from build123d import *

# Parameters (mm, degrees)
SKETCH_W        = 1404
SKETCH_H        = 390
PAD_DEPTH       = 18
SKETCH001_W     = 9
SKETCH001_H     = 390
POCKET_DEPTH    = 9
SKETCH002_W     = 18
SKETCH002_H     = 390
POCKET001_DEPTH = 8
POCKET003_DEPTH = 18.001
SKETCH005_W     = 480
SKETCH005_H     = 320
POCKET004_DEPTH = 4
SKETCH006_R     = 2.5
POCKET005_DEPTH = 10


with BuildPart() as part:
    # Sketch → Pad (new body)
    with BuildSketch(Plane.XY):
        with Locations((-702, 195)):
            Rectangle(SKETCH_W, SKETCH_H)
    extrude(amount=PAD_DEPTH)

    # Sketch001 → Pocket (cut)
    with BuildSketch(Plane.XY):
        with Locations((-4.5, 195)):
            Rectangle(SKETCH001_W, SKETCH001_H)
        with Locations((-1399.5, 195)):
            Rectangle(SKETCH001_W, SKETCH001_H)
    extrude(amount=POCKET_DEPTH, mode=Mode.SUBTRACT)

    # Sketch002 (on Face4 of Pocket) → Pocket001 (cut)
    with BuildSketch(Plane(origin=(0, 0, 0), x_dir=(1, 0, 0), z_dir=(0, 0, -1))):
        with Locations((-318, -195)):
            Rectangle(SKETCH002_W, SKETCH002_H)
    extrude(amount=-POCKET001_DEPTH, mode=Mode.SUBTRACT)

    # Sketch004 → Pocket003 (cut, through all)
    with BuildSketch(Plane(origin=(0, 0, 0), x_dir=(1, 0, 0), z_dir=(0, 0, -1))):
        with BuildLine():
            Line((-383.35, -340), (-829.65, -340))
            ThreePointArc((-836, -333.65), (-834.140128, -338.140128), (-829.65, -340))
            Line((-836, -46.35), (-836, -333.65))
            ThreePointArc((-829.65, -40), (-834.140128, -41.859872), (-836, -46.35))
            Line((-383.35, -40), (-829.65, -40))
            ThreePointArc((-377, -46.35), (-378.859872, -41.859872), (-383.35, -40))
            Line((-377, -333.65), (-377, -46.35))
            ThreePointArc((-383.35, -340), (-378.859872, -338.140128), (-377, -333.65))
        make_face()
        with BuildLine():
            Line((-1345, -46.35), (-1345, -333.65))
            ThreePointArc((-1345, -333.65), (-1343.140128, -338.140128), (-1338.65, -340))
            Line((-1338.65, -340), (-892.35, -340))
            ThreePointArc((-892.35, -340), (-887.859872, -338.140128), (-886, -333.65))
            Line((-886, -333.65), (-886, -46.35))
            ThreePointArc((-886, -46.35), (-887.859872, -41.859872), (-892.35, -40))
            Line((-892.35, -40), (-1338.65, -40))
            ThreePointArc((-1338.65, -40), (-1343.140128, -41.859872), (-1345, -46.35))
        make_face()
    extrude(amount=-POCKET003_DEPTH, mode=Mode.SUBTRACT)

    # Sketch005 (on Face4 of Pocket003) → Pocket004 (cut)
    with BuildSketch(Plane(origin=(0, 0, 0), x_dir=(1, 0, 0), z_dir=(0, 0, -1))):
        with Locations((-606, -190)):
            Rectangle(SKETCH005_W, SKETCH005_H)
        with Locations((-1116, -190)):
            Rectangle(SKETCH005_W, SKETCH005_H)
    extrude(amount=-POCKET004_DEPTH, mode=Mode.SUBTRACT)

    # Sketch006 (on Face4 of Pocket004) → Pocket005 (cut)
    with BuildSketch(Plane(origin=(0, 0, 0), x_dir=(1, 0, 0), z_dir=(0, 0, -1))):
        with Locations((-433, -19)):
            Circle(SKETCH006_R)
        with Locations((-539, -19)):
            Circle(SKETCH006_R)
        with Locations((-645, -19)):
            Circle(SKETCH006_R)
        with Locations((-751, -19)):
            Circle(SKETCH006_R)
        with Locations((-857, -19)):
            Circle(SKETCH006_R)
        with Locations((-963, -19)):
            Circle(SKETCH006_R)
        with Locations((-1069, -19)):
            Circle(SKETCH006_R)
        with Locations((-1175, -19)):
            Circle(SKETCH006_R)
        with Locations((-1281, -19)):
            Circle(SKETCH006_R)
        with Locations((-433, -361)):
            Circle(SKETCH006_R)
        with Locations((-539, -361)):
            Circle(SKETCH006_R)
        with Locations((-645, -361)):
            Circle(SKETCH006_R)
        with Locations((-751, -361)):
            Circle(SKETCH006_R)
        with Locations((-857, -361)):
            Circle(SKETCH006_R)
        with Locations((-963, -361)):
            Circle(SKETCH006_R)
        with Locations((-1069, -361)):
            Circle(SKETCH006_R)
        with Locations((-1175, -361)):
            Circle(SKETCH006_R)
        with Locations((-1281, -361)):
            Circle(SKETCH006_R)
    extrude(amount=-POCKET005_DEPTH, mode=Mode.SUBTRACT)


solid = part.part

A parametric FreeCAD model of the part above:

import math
import FreeCAD as App
import Part
import Sketcher
from FreeCAD import Vector
Q = App.Units.Quantity

doc = App.newDocument("Part")
body = doc.addObject("PartDesign::Body", "Body")

# Sketch on XY plane
sketch1 = body.newObject("Sketcher::SketchObject", "Sketch")
sketch1.AttachmentSupport = (doc.getObject("XY_Plane"), [""])
sketch1.MapMode = "FlatFace"
sketch1.addGeometry(Part.LineSegment(Vector(-1404, 390, 0), Vector(-1404, 0, 0)), False)
sketch1.addGeometry(Part.LineSegment(Vector(-1404, 0, 0), Vector(0, 0, 0)), False)
sketch1.addGeometry(Part.LineSegment(Vector(0, 0, 0), Vector(0, 390, 0)), False)
sketch1.addGeometry(Part.LineSegment(Vector(0, 390, 0), Vector(-1404, 390, 0)), False)
sketch1.addConstraint(Sketcher.Constraint("Coincident", 0, 2, 1, 1))
sketch1.addConstraint(Sketcher.Constraint("Coincident", 1, 2, 2, 1))
sketch1.addConstraint(Sketcher.Constraint("Coincident", 2, 2, 3, 1))
sketch1.addConstraint(Sketcher.Constraint("Coincident", 3, 2, 0, 1))
sketch1.addConstraint(Sketcher.Constraint("Vertical", 0))
sketch1.addConstraint(Sketcher.Constraint("Horizontal", 1))
sketch1.addConstraint(Sketcher.Constraint("Vertical", 2))
sketch1.addConstraint(Sketcher.Constraint("Horizontal", 3))
sketch1.addConstraint(Sketcher.Constraint("Coincident", 1, 2, -1, 1))
sketch1.addConstraint(Sketcher.Constraint("DistanceX", 1, 1, 1, 2, Q("1404 mm")))
sketch1.addConstraint(Sketcher.Constraint("DistanceY", 0, 2, 0, 1, Q("390 mm")))
pad1 = body.newObject("PartDesign::Pad", "Pad")
pad1.Profile = sketch1
pad1.Length = 18

# Sketch on XY plane
sketch2 = body.newObject("Sketcher::SketchObject", "Sketch001")
sketch2.AttachmentSupport = (doc.getObject("XY_Plane"), [""])
sketch2.MapMode = "FlatFace"
sketch2.addGeometry(Part.LineSegment(Vector(-9, 390, 0), Vector(-9, 0, 0)), False)
sketch2.addGeometry(Part.LineSegment(Vector(-9, 0, 0), Vector(0, 0, 0)), False)
sketch2.addGeometry(Part.LineSegment(Vector(0, 0, 0), Vector(0, 390, 0)), False)
sketch2.addGeometry(Part.LineSegment(Vector(0, 390, 0), Vector(-9, 390, 0)), False)
sketch2.addGeometry(Part.LineSegment(Vector(-1404, 390, 0), Vector(-1404, 0, 0)), False)
sketch2.addGeometry(Part.LineSegment(Vector(-1404, 0, 0), Vector(-1395, 0, 0)), False)
sketch2.addGeometry(Part.LineSegment(Vector(-1395, 0, 0), Vector(-1395, 390, 0)), False)
sketch2.addGeometry(Part.LineSegment(Vector(-1395, 390, 0), Vector(-1404, 390, 0)), False)
sketch2.addConstraint(Sketcher.Constraint("Coincident", 0, 2, 1, 1))
sketch2.addConstraint(Sketcher.Constraint("Coincident", 1, 2, 2, 1))
sketch2.addConstraint(Sketcher.Constraint("Coincident", 2, 2, 3, 1))
sketch2.addConstraint(Sketcher.Constraint("Coincident", 3, 2, 0, 1))
sketch2.addConstraint(Sketcher.Constraint("Coincident", 4, 2, 5, 1))
sketch2.addConstraint(Sketcher.Constraint("Coincident", 5, 2, 6, 1))
sketch2.addConstraint(Sketcher.Constraint("Coincident", 6, 2, 7, 1))
sketch2.addConstraint(Sketcher.Constraint("Coincident", 7, 2, 4, 1))
sketch2.addConstraint(Sketcher.Constraint("Vertical", 0))
sketch2.addConstraint(Sketcher.Constraint("Horizontal", 1))
sketch2.addConstraint(Sketcher.Constraint("Vertical", 2))
sketch2.addConstraint(Sketcher.Constraint("Horizontal", 3))
sketch2.addConstraint(Sketcher.Constraint("Vertical", 4))
sketch2.addConstraint(Sketcher.Constraint("Horizontal", 5))
sketch2.addConstraint(Sketcher.Constraint("Vertical", 6))
sketch2.addConstraint(Sketcher.Constraint("Horizontal", 7))
sketch2.addConstraint(Sketcher.Constraint("Coincident", 1, 2, -1, 1))
sketch2.addConstraint(Sketcher.Constraint("PointOnObject", 4, 2, -1))
sketch2.addConstraint(Sketcher.Constraint("Horizontal", 3, 2, 6, 2))
sketch2.addConstraint(Sketcher.Constraint("Equal", 3, 5))
sketch2.addConstraint(Sketcher.Constraint("DistanceX", 1, 1, 1, 2, Q("9 mm")))
sketch2.addConstraint(Sketcher.Constraint("DistanceY", 0, 2, 0, 1, Q("390 mm")))
sketch2.addConstraint(Sketcher.Constraint("DistanceX", 4, 2, -1, 1, Q("1404 mm")))
pocket1 = body.newObject("PartDesign::Pocket", "Pocket")
pocket1.Profile = sketch2
pocket1.Length = 9
pocket1.Reversed = True

# Sketch on XY plane
sketch3 = body.newObject("Sketcher::SketchObject", "Sketch002")
sketch3.AttachmentSupport = (doc.getObject("XY_Plane"), [""])
sketch3.MapMode = "FlatFace"
sketch3.addGeometry(Part.LineSegment(Vector(-327, 0, 0), Vector(-327, 390, 0)), False)
sketch3.addGeometry(Part.LineSegment(Vector(-327, 390, 0), Vector(-309, 390, 0)), False)
sketch3.addGeometry(Part.LineSegment(Vector(-309, 390, 0), Vector(-309, 0, 0)), False)
sketch3.addGeometry(Part.LineSegment(Vector(-309, 0, 0), Vector(-327, 0, 0)), False)
sketch3.addConstraint(Sketcher.Constraint("Coincident", 0, 2, 1, 1))
sketch3.addConstraint(Sketcher.Constraint("Coincident", 1, 2, 2, 1))
sketch3.addConstraint(Sketcher.Constraint("Coincident", 2, 2, 3, 1))
sketch3.addConstraint(Sketcher.Constraint("Coincident", 3, 2, 0, 1))
sketch3.addConstraint(Sketcher.Constraint("Vertical", 0))
sketch3.addConstraint(Sketcher.Constraint("Horizontal", 1))
sketch3.addConstraint(Sketcher.Constraint("Vertical", 2))
sketch3.addConstraint(Sketcher.Constraint("Horizontal", 3))
sketch3.addConstraint(Sketcher.Constraint("PointOnObject", 2, 2, -1))
sketch3.addConstraint(Sketcher.Constraint("DistanceX", 1, 1, 1, 2, Q("18 mm")))
sketch3.addConstraint(Sketcher.Constraint("DistanceY", 0, 1, 0, 2, Q("390 mm")))
sketch3.addConstraint(Sketcher.Constraint("DistanceX", 0, 2, -1, 1, Q("327 mm")))
pocket2 = body.newObject("PartDesign::Pocket", "Pocket001")
pocket2.Profile = sketch3
pocket2.Length = 8
pocket2.Reversed = True

# Sketch on XY plane
sketch4 = body.newObject("Sketcher::SketchObject", "Sketch003")
sketch4.AttachmentSupport = (doc.getObject("XY_Plane"), [""])
sketch4.MapMode = "FlatFace"
sketch4.addGeometry(Part.LineSegment(Vector(-830, 340, 0), Vector(-383, 340, 0)), False)
sketch4.addGeometry(Part.ArcOfCircle(Part.Circle(Vector(-383, 334, 0), Vector(0, 0, 1), 6), math.radians(0), math.radians(90)), False)
sketch4.addGeometry(Part.LineSegment(Vector(-377, 334, 0), Vector(-377, 46, 0)), False)
sketch4.addGeometry(Part.ArcOfCircle(Part.Circle(Vector(-383, 46, 0), Vector(0, 0, 1), 6), math.radians(-90), math.radians(0)), False)
sketch4.addGeometry(Part.LineSegment(Vector(-383, 40, 0), Vector(-830, 40, 0)), False)
sketch4.addGeometry(Part.ArcOfCircle(Part.Circle(Vector(-830, 46, 0), Vector(0, 0, 1), 6), math.radians(-180), math.radians(-90)), False)
sketch4.addGeometry(Part.LineSegment(Vector(-836, 46, 0), Vector(-836, 334, 0)), False)
sketch4.addGeometry(Part.ArcOfCircle(Part.Circle(Vector(-830, 334, 0), Vector(0, 0, 1), 6), math.radians(90), math.radians(180)), False)
sketch4.addGeometry(Part.LineSegment(Vector(-1345, 46, 0), Vector(-1345, 334, 0)), False)
sketch4.addGeometry(Part.ArcOfCircle(Part.Circle(Vector(-1339, 334, 0), Vector(0, 0, 1), 6), math.radians(90), math.radians(180)), False)
sketch4.addGeometry(Part.LineSegment(Vector(-1339, 340, 0), Vector(-892, 340, 0)), False)
sketch4.addGeometry(Part.ArcOfCircle(Part.Circle(Vector(-892, 334, 0), Vector(0, 0, 1), 6), math.radians(0), math.radians(90)), False)
sketch4.addGeometry(Part.LineSegment(Vector(-886, 334, 0), Vector(-886, 46, 0)), False)
sketch4.addGeometry(Part.ArcOfCircle(Part.Circle(Vector(-892, 46, 0), Vector(0, 0, 1), 6), math.radians(-90), math.radians(0)), False)
sketch4.addGeometry(Part.LineSegment(Vector(-892, 40, 0), Vector(-1339, 40, 0)), False)
sketch4.addGeometry(Part.ArcOfCircle(Part.Circle(Vector(-1339, 46, 0), Vector(0, 0, 1), 6), math.radians(-180), math.radians(-90)), False)
sketch4.addConstraint(Sketcher.Constraint("Tangent", 0, 2, 1, 2))
sketch4.addConstraint(Sketcher.Constraint("Tangent", 1, 1, 2, 1))
sketch4.addConstraint(Sketcher.Constraint("Tangent", 2, 2, 3, 2))
sketch4.addConstraint(Sketcher.Constraint("Tangent", 3, 1, 4, 1))
sketch4.addConstraint(Sketcher.Constraint("Tangent", 4, 2, 5, 2))
sketch4.addConstraint(Sketcher.Constraint("Tangent", 5, 1, 6, 1))
sketch4.addConstraint(Sketcher.Constraint("Tangent", 6, 2, 7, 2))
sketch4.addConstraint(Sketcher.Constraint("Tangent", 7, 1, 0, 1))
sketch4.addConstraint(Sketcher.Constraint("Tangent", 8, 2, 9, 2))
sketch4.addConstraint(Sketcher.Constraint("Tangent", 9, 1, 10, 1))
sketch4.addConstraint(Sketcher.Constraint("Tangent", 10, 2, 11, 2))
sketch4.addConstraint(Sketcher.Constraint("Tangent", 11, 1, 12, 1))
sketch4.addConstraint(Sketcher.Constraint("Tangent", 12, 2, 13, 2))
sketch4.addConstraint(Sketcher.Constraint("Tangent", 13, 1, 14, 1))
sketch4.addConstraint(Sketcher.Constraint("Tangent", 14, 2, 15, 2))
sketch4.addConstraint(Sketcher.Constraint("Tangent", 15, 1, 8, 1))
sketch4.addConstraint(Sketcher.Constraint("Horizontal", 0))
sketch4.addConstraint(Sketcher.Constraint("Vertical", 2))
sketch4.addConstraint(Sketcher.Constraint("Horizontal", 4))
sketch4.addConstraint(Sketcher.Constraint("Vertical", 6))
sketch4.addConstraint(Sketcher.Constraint("Vertical", 8))
sketch4.addConstraint(Sketcher.Constraint("Horizontal", 10))
sketch4.addConstraint(Sketcher.Constraint("Vertical", 12))
sketch4.addConstraint(Sketcher.Constraint("Horizontal", 14))
sketch4.addConstraint(Sketcher.Constraint("Equal", 1, 3))
sketch4.addConstraint(Sketcher.Constraint("Equal", 3, 5))
sketch4.addConstraint(Sketcher.Constraint("Equal", 5, 7))
sketch4.addConstraint(Sketcher.Constraint("Equal", 7, 9))
sketch4.addConstraint(Sketcher.Constraint("Equal", 9, 11))
sketch4.addConstraint(Sketcher.Constraint("Equal", 11, 13))
sketch4.addConstraint(Sketcher.Constraint("Equal", 13, 15))
sketch4.addConstraint(Sketcher.Constraint("Horizontal", 7, 3, 9, 3))
sketch4.addConstraint(Sketcher.Constraint("Horizontal", 5, 3, 13, 3))
sketch4.addConstraint(Sketcher.Constraint("Equal", 4, 10))
sketch4.addConstraint(Sketcher.Constraint("Radius", 1, Q("6.35 mm")))
sketch4.addConstraint(Sketcher.Constraint("DistanceX", 0, 1, 0, 2, Q("446.3 mm")))
sketch4.addConstraint(Sketcher.Constraint("DistanceY", 2, 2, 2, 1, Q("287.3 mm")))
sketch4.addConstraint(Sketcher.Constraint("DistanceY", -1, 1, 0, 2, Q("340 mm")))
sketch4.addConstraint(Sketcher.Constraint("DistanceX", 1, 1, -1, 1, Q("377 mm")))
sketch4.addConstraint(Sketcher.Constraint("DistanceX", 8, 2, -1, 1, Q("1345 mm")))
pocket3 = body.newObject("PartDesign::Pocket", "Pocket002")
pocket3.Profile = sketch4
pocket3.Type = "ThroughAll"
pocket3.Reversed = True

# Sketch on XY plane
sketch5 = body.newObject("Sketcher::SketchObject", "Sketch004")
sketch5.AttachmentSupport = (doc.getObject("XY_Plane"), [""])
sketch5.MapMode = "FlatFace"
sketch5.addGeometry(Part.LineSegment(Vector(-846, 30, 0), Vector(-846, 350, 0)), False)
sketch5.addGeometry(Part.LineSegment(Vector(-846, 350, 0), Vector(-366, 350, 0)), False)
sketch5.addGeometry(Part.LineSegment(Vector(-366, 350, 0), Vector(-366, 30, 0)), False)
sketch5.addGeometry(Part.LineSegment(Vector(-366, 30, 0), Vector(-846, 30, 0)), False)
sketch5.addGeometry(Part.LineSegment(Vector(-1356, 30, 0), Vector(-1356, 350, 0)), False)
sketch5.addGeometry(Part.LineSegment(Vector(-1356, 350, 0), Vector(-876, 350, 0)), False)
sketch5.addGeometry(Part.LineSegment(Vector(-876, 350, 0), Vector(-876, 30, 0)), False)
sketch5.addGeometry(Part.LineSegment(Vector(-876, 30, 0), Vector(-1356, 30, 0)), False)
sketch5.addConstraint(Sketcher.Constraint("Coincident", 0, 2, 1, 1))
sketch5.addConstraint(Sketcher.Constraint("Coincident", 1, 2, 2, 1))
sketch5.addConstraint(Sketcher.Constraint("Coincident", 2, 2, 3, 1))
sketch5.addConstraint(Sketcher.Constraint("Coincident", 3, 2, 0, 1))
sketch5.addConstraint(Sketcher.Constraint("Coincident", 4, 2, 5, 1))
sketch5.addConstraint(Sketcher.Constraint("Coincident", 5, 2, 6, 1))
sketch5.addConstraint(Sketcher.Constraint("Coincident", 6, 2, 7, 1))
sketch5.addConstraint(Sketcher.Constraint("Coincident", 7, 2, 4, 1))
sketch5.addConstraint(Sketcher.Constraint("Vertical", 0))
sketch5.addConstraint(Sketcher.Constraint("Horizontal", 1))
sketch5.addConstraint(Sketcher.Constraint("Vertical", 2))
sketch5.addConstraint(Sketcher.Constraint("Horizontal", 3))
sketch5.addConstraint(Sketcher.Constraint("Vertical", 4))
sketch5.addConstraint(Sketcher.Constraint("Horizontal", 5))
sketch5.addConstraint(Sketcher.Constraint("Vertical", 6))
sketch5.addConstraint(Sketcher.Constraint("Horizontal", 7))
sketch5.addConstraint(Sketcher.Constraint("Horizontal", 1, 2, 4, 2))
sketch5.addConstraint(Sketcher.Constraint("Horizontal", 3, 2, 6, 2))
sketch5.addConstraint(Sketcher.Constraint("Equal", 3, 5))
sketch5.addConstraint(Sketcher.Constraint("DistanceX", 1, 1, 1, 2, Q("480 mm")))
sketch5.addConstraint(Sketcher.Constraint("DistanceY", 0, 1, 0, 2, Q("320 mm")))
sketch5.addConstraint(Sketcher.Constraint("DistanceX", 0, 2, -1, 1, Q("846 mm")))
sketch5.addConstraint(Sketcher.Constraint("DistanceY", -1, 1, 0, 2, Q("350 mm")))
sketch5.addConstraint(Sketcher.Constraint("DistanceX", 4, 2, -1, 1, Q("1356 mm")))
pocket4 = body.newObject("PartDesign::Pocket", "Pocket003")
pocket4.Profile = sketch5
pocket4.Length = 4
pocket4.Reversed = True

# Sketch on XY plane
sketch6 = body.newObject("Sketcher::SketchObject", "Sketch005")
sketch6.AttachmentSupport = (doc.getObject("XY_Plane"), [""])
sketch6.MapMode = "FlatFace"
sketch6.addGeometry(Part.Circle(Vector(-433, 19, 0), Vector(0, 0, 1), 2.5), False)
sketch6.addGeometry(Part.Circle(Vector(-539, 19, 0), Vector(0, 0, 1), 2.5), False)
sketch6.addGeometry(Part.Circle(Vector(-645, 19, 0), Vector(0, 0, 1), 2.5), False)
sketch6.addGeometry(Part.Circle(Vector(-751, 19, 0), Vector(0, 0, 1), 2.5), False)
sketch6.addGeometry(Part.Circle(Vector(-857, 19, 0), Vector(0, 0, 1), 2.5), False)
sketch6.addGeometry(Part.Circle(Vector(-963, 19, 0), Vector(0, 0, 1), 2.5), False)
sketch6.addGeometry(Part.Circle(Vector(-1069, 19, 0), Vector(0, 0, 1), 2.5), False)
sketch6.addGeometry(Part.Circle(Vector(-1175, 19, 0), Vector(0, 0, 1), 2.5), False)
sketch6.addGeometry(Part.Circle(Vector(-1281, 19, 0), Vector(0, 0, 1), 2.5), False)
sketch6.addGeometry(Part.Circle(Vector(-433, 361, 0), Vector(0, 0, 1), 2.5), False)
sketch6.addGeometry(Part.Circle(Vector(-539, 361, 0), Vector(0, 0, 1), 2.5), False)
sketch6.addGeometry(Part.Circle(Vector(-645, 361, 0), Vector(0, 0, 1), 2.5), False)
sketch6.addGeometry(Part.Circle(Vector(-751, 361, 0), Vector(0, 0, 1), 2.5), False)
sketch6.addGeometry(Part.Circle(Vector(-857, 361, 0), Vector(0, 0, 1), 2.5), False)
sketch6.addGeometry(Part.Circle(Vector(-963, 361, 0), Vector(0, 0, 1), 2.5), False)
sketch6.addGeometry(Part.Circle(Vector(-1069, 361, 0), Vector(0, 0, 1), 2.5), False)
sketch6.addGeometry(Part.Circle(Vector(-1175, 361, 0), Vector(0, 0, 1), 2.5), False)
sketch6.addGeometry(Part.Circle(Vector(-1281, 361, 0), Vector(0, 0, 1), 2.5), False)
sketch6.addConstraint(Sketcher.Constraint("Equal", 0, 1))
sketch6.addConstraint(Sketcher.Constraint("Equal", 1, 2))
sketch6.addConstraint(Sketcher.Constraint("Equal", 2, 3))
sketch6.addConstraint(Sketcher.Constraint("Equal", 3, 4))
sketch6.addConstraint(Sketcher.Constraint("Equal", 4, 5))
sketch6.addConstraint(Sketcher.Constraint("Equal", 5, 6))
sketch6.addConstraint(Sketcher.Constraint("Equal", 6, 7))
sketch6.addConstraint(Sketcher.Constraint("Equal", 7, 8))
sketch6.addConstraint(Sketcher.Constraint("Equal", 8, 9))
sketch6.addConstraint(Sketcher.Constraint("Equal", 9, 10))
sketch6.addConstraint(Sketcher.Constraint("Equal", 10, 11))
sketch6.addConstraint(Sketcher.Constraint("Equal", 11, 12))
sketch6.addConstraint(Sketcher.Constraint("Equal", 12, 13))
sketch6.addConstraint(Sketcher.Constraint("Equal", 13, 14))
sketch6.addConstraint(Sketcher.Constraint("Equal", 14, 15))
sketch6.addConstraint(Sketcher.Constraint("Equal", 15, 16))
sketch6.addConstraint(Sketcher.Constraint("Equal", 16, 17))
sketch6.addConstraint(Sketcher.Constraint("Horizontal", 0, 3, 1, 3))
sketch6.addConstraint(Sketcher.Constraint("Horizontal", 1, 3, 2, 3))
sketch6.addConstraint(Sketcher.Constraint("Horizontal", 2, 3, 3, 3))
sketch6.addConstraint(Sketcher.Constraint("Horizontal", 3, 3, 4, 3))
sketch6.addConstraint(Sketcher.Constraint("Horizontal", 4, 3, 5, 3))
sketch6.addConstraint(Sketcher.Constraint("Horizontal", 5, 3, 6, 3))
sketch6.addConstraint(Sketcher.Constraint("Horizontal", 6, 3, 7, 3))
sketch6.addConstraint(Sketcher.Constraint("Horizontal", 7, 3, 8, 3))
sketch6.addConstraint(Sketcher.Constraint("Horizontal", 9, 3, 10, 3))
sketch6.addConstraint(Sketcher.Constraint("Horizontal", 10, 3, 11, 3))
sketch6.addConstraint(Sketcher.Constraint("Horizontal", 11, 3, 12, 3))
sketch6.addConstraint(Sketcher.Constraint("Horizontal", 12, 3, 13, 3))
sketch6.addConstraint(Sketcher.Constraint("Horizontal", 13, 3, 14, 3))
sketch6.addConstraint(Sketcher.Constraint("Horizontal", 14, 3, 15, 3))
sketch6.addConstraint(Sketcher.Constraint("Horizontal", 15, 3, 16, 3))
sketch6.addConstraint(Sketcher.Constraint("Horizontal", 16, 3, 17, 3))
sketch6.addConstraint(Sketcher.Constraint("Vertical", 0, 3, 9, 3))
sketch6.addConstraint(Sketcher.Constraint("Vertical", 1, 3, 10, 3))
sketch6.addConstraint(Sketcher.Constraint("Vertical", 2, 3, 11, 3))
sketch6.addConstraint(Sketcher.Constraint("Vertical", 3, 3, 12, 3))
sketch6.addConstraint(Sketcher.Constraint("Vertical", 4, 3, 13, 3))
sketch6.addConstraint(Sketcher.Constraint("Vertical", 5, 3, 14, 3))
sketch6.addConstraint(Sketcher.Constraint("Vertical", 6, 3, 15, 3))
sketch6.addConstraint(Sketcher.Constraint("Vertical", 7, 3, 16, 3))
sketch6.addConstraint(Sketcher.Constraint("Vertical", 8, 3, 17, 3))
sketch6.addConstraint(Sketcher.Constraint("Diameter", 0, Q("5 mm")))
sketch6.addConstraint(Sketcher.Constraint("DistanceX", 0, 3, -1, 1, Q("433 mm")))
sketch6.addConstraint(Sketcher.Constraint("DistanceY", -1, 1, 0, 3, Q("19 mm")))
sketch6.addConstraint(Sketcher.Constraint("DistanceX", 1, 3, -1, 1, Q("539 mm")))
sketch6.addConstraint(Sketcher.Constraint("DistanceX", 2, 3, -1, 1, Q("645 mm")))
sketch6.addConstraint(Sketcher.Constraint("DistanceX", 3, 3, -1, 1, Q("751 mm")))
sketch6.addConstraint(Sketcher.Constraint("DistanceX", 4, 3, -1, 1, Q("857 mm")))
sketch6.addConstraint(Sketcher.Constraint("DistanceX", 5, 3, -1, 1, Q("963 mm")))
sketch6.addConstraint(Sketcher.Constraint("DistanceX", 6, 3, -1, 1, Q("1069 mm")))
sketch6.addConstraint(Sketcher.Constraint("DistanceX", 7, 3, -1, 1, Q("1175 mm")))
sketch6.addConstraint(Sketcher.Constraint("DistanceX", 8, 3, -1, 1, Q("1281 mm")))
sketch6.addConstraint(Sketcher.Constraint("DistanceY", -1, 1, 9, 3, Q("361 mm")))
pocket5 = body.newObject("PartDesign::Pocket", "Pocket004")
pocket5.Profile = sketch6
pocket5.Length = 10
pocket5.Reversed = True

doc.recompute()
